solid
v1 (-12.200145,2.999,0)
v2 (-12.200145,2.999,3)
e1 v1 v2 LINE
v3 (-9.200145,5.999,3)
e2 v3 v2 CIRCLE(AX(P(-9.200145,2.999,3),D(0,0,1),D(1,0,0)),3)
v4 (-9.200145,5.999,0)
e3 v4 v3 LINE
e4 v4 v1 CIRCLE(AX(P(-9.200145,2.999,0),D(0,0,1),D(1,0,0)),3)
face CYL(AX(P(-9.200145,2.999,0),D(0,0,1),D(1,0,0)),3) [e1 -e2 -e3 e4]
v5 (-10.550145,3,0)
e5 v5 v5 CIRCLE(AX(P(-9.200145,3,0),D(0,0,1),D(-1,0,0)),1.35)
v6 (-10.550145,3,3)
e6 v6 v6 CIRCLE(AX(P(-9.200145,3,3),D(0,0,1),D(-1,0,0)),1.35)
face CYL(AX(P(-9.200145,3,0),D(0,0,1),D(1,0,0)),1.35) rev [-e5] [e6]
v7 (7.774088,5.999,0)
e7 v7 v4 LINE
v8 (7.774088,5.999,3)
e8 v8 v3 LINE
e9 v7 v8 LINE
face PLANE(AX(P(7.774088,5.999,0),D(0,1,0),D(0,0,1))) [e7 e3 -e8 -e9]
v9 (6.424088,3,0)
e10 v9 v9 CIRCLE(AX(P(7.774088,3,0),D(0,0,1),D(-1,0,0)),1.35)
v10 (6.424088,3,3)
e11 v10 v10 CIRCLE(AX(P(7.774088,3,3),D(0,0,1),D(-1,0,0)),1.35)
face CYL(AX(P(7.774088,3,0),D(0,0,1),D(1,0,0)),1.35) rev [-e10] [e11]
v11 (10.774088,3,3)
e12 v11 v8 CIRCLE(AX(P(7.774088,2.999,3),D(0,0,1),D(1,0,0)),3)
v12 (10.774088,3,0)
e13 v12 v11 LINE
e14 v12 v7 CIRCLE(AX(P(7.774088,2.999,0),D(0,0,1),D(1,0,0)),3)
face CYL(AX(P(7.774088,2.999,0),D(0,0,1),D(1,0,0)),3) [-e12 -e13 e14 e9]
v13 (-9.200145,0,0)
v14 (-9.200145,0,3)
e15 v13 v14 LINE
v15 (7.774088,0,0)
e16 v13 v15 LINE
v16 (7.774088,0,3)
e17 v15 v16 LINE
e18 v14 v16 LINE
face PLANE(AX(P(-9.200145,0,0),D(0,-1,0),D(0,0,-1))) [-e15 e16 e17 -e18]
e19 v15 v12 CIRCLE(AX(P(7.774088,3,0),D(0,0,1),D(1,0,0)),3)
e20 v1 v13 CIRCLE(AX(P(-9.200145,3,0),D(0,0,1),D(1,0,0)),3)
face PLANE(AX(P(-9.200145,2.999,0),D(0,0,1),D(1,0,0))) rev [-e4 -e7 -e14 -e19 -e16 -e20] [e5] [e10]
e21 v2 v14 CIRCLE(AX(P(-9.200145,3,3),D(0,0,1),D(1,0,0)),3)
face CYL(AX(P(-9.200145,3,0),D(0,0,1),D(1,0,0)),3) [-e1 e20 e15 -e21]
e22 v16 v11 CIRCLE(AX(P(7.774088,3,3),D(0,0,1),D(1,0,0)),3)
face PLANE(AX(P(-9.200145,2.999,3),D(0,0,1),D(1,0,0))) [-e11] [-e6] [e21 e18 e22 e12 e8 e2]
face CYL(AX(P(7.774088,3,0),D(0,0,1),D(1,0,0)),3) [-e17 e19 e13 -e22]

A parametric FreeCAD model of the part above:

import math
import FreeCAD as App
import Part
import Sketcher
from FreeCAD import Vector
Q = App.Units.Quantity

doc = App.newDocument("Part")
params = doc.addObject("Spreadsheet::Sheet", "Params")
for row, (alias, value) in enumerate([
    ("sketch1_radius", "3 mm"),
    ("sketch1_diameter", "2.7 mm"),
    ("pad1_length", "3 mm"),
], start=1):
    params.set(f"A{row}", alias)
    params.set(f"B{row}", "=" + value)
    params.setAlias(f"B{row}", alias)

body = doc.addObject("PartDesign::Body", "Body")

# Sketch on XY plane
sketch1 = doc.addObject("Sketcher::SketchObject", "Sketch")
body.addObject(sketch1)
sketch1.AttachmentSupport = (doc.XY_Plane, [""])
sketch1.MapMode = "FlatFace"
sketch1.AttachmentOffset = App.Placement(Vector(0, 0, 3), App.Rotation())
sketch1.addGeometry(Part.LineSegment(Vector(-9.2, 0, 0), Vector(7.8, 0, 0)), False)
sketch1.addGeometry(Part.ArcOfCircle(Part.Circle(Vector(7.8, 3, 0), Vector(0, 0, 1), 3), math.radians(-90), math.radians(0)), False)
sketch1.addGeometry(Part.ArcOfCircle(Part.Circle(Vector(7.8, 3, 0), Vector(0, 0, 1), 3), math.radians(0), math.radians(90)), False)
sketch1.addGeometry(Part.LineSegment(Vector(7.8, 6, 0), Vector(-9.2, 6, 0)), False)
sketch1.addGeometry(Part.ArcOfCircle(Part.Circle(Vector(-9.2, 3, 0), Vector(0, 0, 1), 3), math.radians(90), math.radians(180)), False)
sketch1.addGeometry(Part.ArcOfCircle(Part.Circle(Vector(-9.2, 3, 0), Vector(0, 0, 1), 3), math.radians(-180), math.radians(-90)), False)
sketch1.addGeometry(Part.Circle(Vector(-9.2, 3, 0), Vector(0, 0, 1), 1.4), False)
sketch1.addGeometry(Part.Circle(Vector(7.8, 3, 0), Vector(0, 0, 1), 1.4), False)
sketch1.addConstraint(Sketcher.Constraint("Tangent", 0, 2, 1, 1))
sketch1.addConstraint(Sketcher.Constraint("Coincident", 1, 2, 2, 1))
sketch1.addConstraint(Sketcher.Constraint("Tangent", 2, 2, 3, 1))
sketch1.addConstraint(Sketcher.Constraint("Tangent", 3, 2, 4, 1))
sketch1.addConstraint(Sketcher.Constraint("Coincident", 4, 2, 5, 1))
sketch1.addConstraint(Sketcher.Constraint("Tangent", 5, 2, 0, 1))
sketch1.addConstraint(Sketcher.Constraint("Horizontal", 0))
sketch1.addConstraint(Sketcher.Constraint("Horizontal", 3))
sketch1.addConstraint(Sketcher.Constraint("Coincident", 6, 3, 5, 3))
sketch1.addConstraint(Sketcher.Constraint("Coincident", 7, 3, 1, 3))
sketch1.addConstraint(Sketcher.Constraint("Equal", 1, 2))
sketch1.addConstraint(Sketcher.Constraint("Equal", 2, 4))
sketch1.addConstraint(Sketcher.Constraint("Equal", 4, 5))
sketch1.addConstraint(Sketcher.Constraint("Equal", 6, 7))
sketch1.addConstraint(Sketcher.Constraint("PointOnObject", 0, 2, -1))
sketch1.addConstraint(Sketcher.Constraint("Horizontal", 7, 3, 1, 2))
sketch1.addConstraint(Sketcher.Constraint("Horizontal", 2, 3, 4, 2))
sketch1.addConstraint(Sketcher.Constraint("Radius", 1, Q("3 mm")))
sketch1.addConstraint(Sketcher.Constraint("Diameter", 6, Q("2.7 mm")))
sketch1.addConstraint(Sketcher.Constraint("DistanceY", -1, 1, 2, 3, Q("2.999 mm")))
sketch1.addConstraint(Sketcher.Constraint("DistanceX", 0, 1, 0, 2, Q("16.974233 mm")))
sketch1.addConstraint(Sketcher.Constraint("DistanceX", -1, 1, 1, 3, Q("7.774088 mm")))
sketch1.setExpression("Constraints[17]", "Params.sketch1_radius")
sketch1.setExpression("Constraints[18]", "Params.sketch1_diameter")
pad1 = doc.addObject("PartDesign::Pad", "Pad")
body.addObject(pad1)
pad1.Profile = sketch1
pad1.setExpression("Length", "Params.pad1_length")
pad1.Reversed = True

doc.recompute()
